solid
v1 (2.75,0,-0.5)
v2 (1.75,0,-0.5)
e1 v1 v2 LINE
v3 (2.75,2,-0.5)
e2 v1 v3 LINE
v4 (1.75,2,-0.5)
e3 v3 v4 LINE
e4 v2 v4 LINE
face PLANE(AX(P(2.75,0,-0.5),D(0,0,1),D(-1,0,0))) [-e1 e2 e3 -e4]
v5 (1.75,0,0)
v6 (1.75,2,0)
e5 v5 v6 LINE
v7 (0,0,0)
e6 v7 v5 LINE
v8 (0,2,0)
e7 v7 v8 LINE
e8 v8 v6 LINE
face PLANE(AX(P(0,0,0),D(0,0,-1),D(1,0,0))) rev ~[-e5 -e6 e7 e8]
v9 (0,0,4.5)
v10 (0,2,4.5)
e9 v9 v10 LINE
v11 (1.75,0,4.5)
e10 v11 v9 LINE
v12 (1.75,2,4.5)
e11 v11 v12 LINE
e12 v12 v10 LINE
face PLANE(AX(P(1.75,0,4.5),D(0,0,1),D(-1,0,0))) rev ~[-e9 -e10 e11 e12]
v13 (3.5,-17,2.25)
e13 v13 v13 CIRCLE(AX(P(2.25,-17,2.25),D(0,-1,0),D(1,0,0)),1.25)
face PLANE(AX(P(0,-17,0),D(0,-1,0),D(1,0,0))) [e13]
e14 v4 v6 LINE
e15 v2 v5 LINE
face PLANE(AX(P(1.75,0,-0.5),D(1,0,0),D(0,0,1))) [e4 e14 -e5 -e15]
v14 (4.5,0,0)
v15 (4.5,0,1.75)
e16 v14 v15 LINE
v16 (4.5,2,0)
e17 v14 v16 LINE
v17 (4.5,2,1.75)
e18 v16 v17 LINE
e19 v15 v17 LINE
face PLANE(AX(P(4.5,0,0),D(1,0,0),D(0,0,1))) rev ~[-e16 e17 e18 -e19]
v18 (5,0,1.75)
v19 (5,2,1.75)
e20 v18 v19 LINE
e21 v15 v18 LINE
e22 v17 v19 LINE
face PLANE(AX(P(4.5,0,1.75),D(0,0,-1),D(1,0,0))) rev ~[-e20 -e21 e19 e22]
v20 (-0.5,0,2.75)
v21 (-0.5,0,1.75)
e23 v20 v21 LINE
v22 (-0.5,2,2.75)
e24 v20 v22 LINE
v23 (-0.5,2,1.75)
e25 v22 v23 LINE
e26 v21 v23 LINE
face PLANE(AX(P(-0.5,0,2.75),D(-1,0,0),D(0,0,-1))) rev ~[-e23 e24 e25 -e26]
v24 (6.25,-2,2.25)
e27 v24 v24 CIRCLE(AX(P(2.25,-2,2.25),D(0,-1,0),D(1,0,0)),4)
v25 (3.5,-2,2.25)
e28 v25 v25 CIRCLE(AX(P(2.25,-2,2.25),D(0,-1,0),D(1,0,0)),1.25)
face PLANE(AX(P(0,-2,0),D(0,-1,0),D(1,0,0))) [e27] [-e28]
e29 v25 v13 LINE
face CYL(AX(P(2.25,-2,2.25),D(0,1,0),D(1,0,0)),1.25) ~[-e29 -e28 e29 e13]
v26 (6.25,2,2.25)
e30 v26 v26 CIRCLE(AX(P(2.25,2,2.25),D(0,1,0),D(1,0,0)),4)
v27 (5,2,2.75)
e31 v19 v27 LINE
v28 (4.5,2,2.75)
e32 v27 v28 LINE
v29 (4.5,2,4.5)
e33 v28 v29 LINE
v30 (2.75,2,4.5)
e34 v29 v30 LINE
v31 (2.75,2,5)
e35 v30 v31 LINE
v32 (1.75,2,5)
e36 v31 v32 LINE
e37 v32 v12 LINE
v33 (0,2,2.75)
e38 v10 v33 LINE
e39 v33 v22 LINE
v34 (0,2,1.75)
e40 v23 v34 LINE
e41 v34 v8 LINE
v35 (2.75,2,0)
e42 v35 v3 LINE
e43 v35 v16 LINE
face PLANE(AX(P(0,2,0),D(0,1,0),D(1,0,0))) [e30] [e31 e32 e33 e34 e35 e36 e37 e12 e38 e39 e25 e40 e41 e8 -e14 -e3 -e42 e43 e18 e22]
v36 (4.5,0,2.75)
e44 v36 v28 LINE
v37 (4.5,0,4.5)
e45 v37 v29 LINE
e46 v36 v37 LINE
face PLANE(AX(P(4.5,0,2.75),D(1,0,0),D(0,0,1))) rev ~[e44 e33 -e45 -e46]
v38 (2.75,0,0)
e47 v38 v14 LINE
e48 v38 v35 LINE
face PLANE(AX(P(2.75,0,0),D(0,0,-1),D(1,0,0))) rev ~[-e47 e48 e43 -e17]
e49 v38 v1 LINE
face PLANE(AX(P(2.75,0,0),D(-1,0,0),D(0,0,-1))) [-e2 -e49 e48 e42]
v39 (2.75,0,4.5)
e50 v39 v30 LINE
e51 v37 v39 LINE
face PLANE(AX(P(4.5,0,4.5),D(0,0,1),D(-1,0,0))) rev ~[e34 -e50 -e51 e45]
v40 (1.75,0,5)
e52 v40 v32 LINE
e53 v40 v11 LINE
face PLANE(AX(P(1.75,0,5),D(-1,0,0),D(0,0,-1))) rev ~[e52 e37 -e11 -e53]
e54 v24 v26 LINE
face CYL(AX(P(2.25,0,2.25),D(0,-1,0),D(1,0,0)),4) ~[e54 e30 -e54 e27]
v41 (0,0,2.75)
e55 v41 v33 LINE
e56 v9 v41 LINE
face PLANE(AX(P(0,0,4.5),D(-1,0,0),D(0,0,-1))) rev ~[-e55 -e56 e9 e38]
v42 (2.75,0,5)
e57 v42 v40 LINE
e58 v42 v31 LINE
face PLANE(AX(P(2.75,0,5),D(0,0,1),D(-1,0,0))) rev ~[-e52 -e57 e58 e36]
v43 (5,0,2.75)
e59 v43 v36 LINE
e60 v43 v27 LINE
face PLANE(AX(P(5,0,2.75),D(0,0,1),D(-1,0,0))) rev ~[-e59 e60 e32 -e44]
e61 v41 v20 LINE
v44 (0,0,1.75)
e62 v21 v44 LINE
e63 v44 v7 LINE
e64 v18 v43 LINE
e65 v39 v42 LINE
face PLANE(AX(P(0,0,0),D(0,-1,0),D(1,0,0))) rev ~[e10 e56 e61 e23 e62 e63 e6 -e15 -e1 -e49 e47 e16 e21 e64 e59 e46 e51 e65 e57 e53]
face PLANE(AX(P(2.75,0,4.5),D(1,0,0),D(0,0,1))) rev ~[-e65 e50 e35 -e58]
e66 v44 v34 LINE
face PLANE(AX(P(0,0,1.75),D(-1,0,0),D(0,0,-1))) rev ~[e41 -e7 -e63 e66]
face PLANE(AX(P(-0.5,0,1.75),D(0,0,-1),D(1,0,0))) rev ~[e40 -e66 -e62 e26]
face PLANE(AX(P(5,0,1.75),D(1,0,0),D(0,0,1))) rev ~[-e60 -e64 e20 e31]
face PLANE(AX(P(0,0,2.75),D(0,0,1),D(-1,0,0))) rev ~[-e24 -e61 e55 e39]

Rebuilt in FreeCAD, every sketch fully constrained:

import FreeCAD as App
import Part
import Sketcher

doc = App.newDocument("Part")
body = doc.addObject("PartDesign::Body", "Body")

# Sketch on XZ plane
sketch1 = doc.addObject("Sketcher::SketchObject", "Sketch")
body.addObject(sketch1)
sketch1.AttachmentSupport = (doc.XZ_Plane, [""])
sketch1.MapMode = "FlatFace"
sketch1.addGeometry(Part.Circle(App.Vector(2.25, 2.25, 0), App.Vector(0, 0, 1), 4), False)
sketch1.addGeometry(Part.LineSegment(App.Vector(0, 1.75, 0), App.Vector(0, 0, 0)), False)
sketch1.addGeometry(Part.LineSegment(App.Vector(0, 0, 0), App.Vector(1.75, 0, 0)), False)
sketch1.addGeometry(Part.LineSegment(App.Vector(1.75, 0, 0), App.Vector(1.75, -0.5, 0)), False)
sketch1.addGeometry(Part.LineSegment(App.Vector(1.75, -0.5, 0), App.Vector(2.75, -0.5, 0)), False)
sketch1.addGeometry(Part.LineSegment(App.Vector(2.75, -0.5, 0), App.Vector(2.75, 0, 0)), False)
sketch1.addGeometry(Part.LineSegment(App.Vector(2.75, 0, 0), App.Vector(4.5, 0, 0)), False)
sketch1.addGeometry(Part.LineSegment(App.Vector(4.5, 0, 0), App.Vector(4.5, 1.75, 0)), False)
sketch1.addGeometry(Part.LineSegment(App.Vector(4.5, 1.75, 0), App.Vector(5, 1.75, 0)), False)
sketch1.addGeometry(Part.LineSegment(App.Vector(5, 1.75, 0), App.Vector(5, 2.75, 0)), False)
sketch1.addGeometry(Part.LineSegment(App.Vector(5, 2.75, 0), App.Vector(4.5, 2.75, 0)), False)
sketch1.addGeometry(Part.LineSegment(App.Vector(4.5, 2.75, 0), App.Vector(4.5, 4.5, 0)), False)
sketch1.addGeometry(Part.LineSegment(App.Vector(4.5, 4.5, 0), App.Vector(2.75, 4.5, 0)), False)
sketch1.addGeometry(Part.LineSegment(App.Vector(2.75, 4.5, 0), App.Vector(2.75, 5, 0)), False)
sketch1.addGeometry(Part.LineSegment(App.Vector(2.75, 5, 0), App.Vector(1.75, 5, 0)), False)
sketch1.addGeometry(Part.LineSegment(App.Vector(1.75, 5, 0), App.Vector(1.75, 4.5, 0)), False)
sketch1.addGeometry(Part.LineSegment(App.Vector(1.75, 4.5, 0), App.Vector(0, 4.5, 0)), False)
sketch1.addGeometry(Part.LineSegment(App.Vector(0, 4.5, 0), App.Vector(0, 2.75, 0)), False)
sketch1.addGeometry(Part.LineSegment(App.Vector(0, 2.75, 0), App.Vector(-0.5, 2.75, 0)), False)
sketch1.addGeometry(Part.LineSegment(App.Vector(-0.5, 2.75, 0), App.Vector(-0.5, 1.75, 0)), False)
sketch1.addGeometry(Part.LineSegment(App.Vector(-0.5, 1.75, 0), App.Vector(0, 1.75, 0)), False)
sketch1.addConstraint(Sketcher.Constraint("Coincident", 1, 2, 2, 1))
sketch1.addConstraint(Sketcher.Constraint("Coincident", 2, 2, 3, 1))
sketch1.addConstraint(Sketcher.Constraint("Coincident", 3, 2, 4, 1))
sketch1.addConstraint(Sketcher.Constraint("Coincident", 4, 2, 5, 1))
sketch1.addConstraint(Sketcher.Constraint("Coincident", 5, 2, 6, 1))
sketch1.addConstraint(Sketcher.Constraint("Coincident", 6, 2, 7, 1))
sketch1.addConstraint(Sketcher.Constraint("Coincident", 7, 2, 8, 1))
sketch1.addConstraint(Sketcher.Constraint("Coincident", 8, 2, 9, 1))
sketch1.addConstraint(Sketcher.Constraint("Coincident", 9, 2, 10, 1))
sketch1.addConstraint(Sketcher.Constraint("Coincident", 10, 2, 11, 1))
sketch1.addConstraint(Sketcher.Constraint("Coincident", 11, 2, 12, 1))
sketch1.addConstraint(Sketcher.Constraint("Coincident", 12, 2, 13, 1))
sketch1.addConstraint(Sketcher.Constraint("Coincident", 13, 2, 14, 1))
sketch1.addConstraint(Sketcher.Constraint("Coincident", 14, 2, 15, 1))
sketch1.addConstraint(Sketcher.Constraint("Coincident", 15, 2, 16, 1))
sketch1.addConstraint(Sketcher.Constraint("Coincident", 16, 2, 17, 1))
sketch1.addConstraint(Sketcher.Constraint("Coincident", 17, 2, 18, 1))
sketch1.addConstraint(Sketcher.Constraint("Coincident", 18, 2, 19, 1))
sketch1.addConstraint(Sketcher.Constraint("Coincident", 19, 2, 20, 1))
sketch1.addConstraint(Sketcher.Constraint("Coincident", 20, 2, 1, 1))
sketch1.addConstraint(Sketcher.Constraint("Vertical", 1))
sketch1.addConstraint(Sketcher.Constraint("Horizontal", 2))
sketch1.addConstraint(Sketcher.Constraint("Vertical", 3))
sketch1.addConstraint(Sketcher.Constraint("Horizontal", 4))
sketch1.addConstraint(Sketcher.Constraint("Vertical", 5))
sketch1.addConstraint(Sketcher.Constraint("Horizontal", 6))
sketch1.addConstraint(Sketcher.Constraint("Vertical", 7))
sketch1.addConstraint(Sketcher.Constraint("Horizontal", 8))
sketch1.addConstraint(Sketcher.Constraint("Vertical", 9))
sketch1.addConstraint(Sketcher.Constraint("Horizontal", 10))
sketch1.addConstraint(Sketcher.Constraint("Vertical", 11))
sketch1.addConstraint(Sketcher.Constraint("Horizontal", 12))
sketch1.addConstraint(Sketcher.Constraint("Vertical", 13))
sketch1.addConstraint(Sketcher.Constraint("Horizontal", 14))
sketch1.addConstraint(Sketcher.Constraint("Vertical", 15))
sketch1.addConstraint(Sketcher.Constraint("Horizontal", 16))
sketch1.addConstraint(Sketcher.Constraint("Vertical", 17))
sketch1.addConstraint(Sketcher.Constraint("Horizontal", 18))
sketch1.addConstraint(Sketcher.Constraint("Vertical", 19))
sketch1.addConstraint(Sketcher.Constraint("Horizontal", 20))
sketch1.addConstraint(Sketcher.Constraint("Coincident", 1, 2, -1, 1))
sketch1.addConstraint(Sketcher.Constraint("PointOnObject", 5, 2, -1))
sketch1.addConstraint(Sketcher.Constraint("PointOnObject", 16, 2, -2))
sketch1.addConstraint(Sketcher.Constraint("Horizontal", 12, 2, 15, 2))
sketch1.addConstraint(Sketcher.Constraint("Horizontal", 10, 2, 17, 2))
sketch1.addConstraint(Sketcher.Constraint("Horizontal", 8, 2, 19, 2))
sketch1.addConstraint(Sketcher.Constraint("Vertical", 7, 2, 10, 2))
sketch1.addConstraint(Sketcher.Constraint("Vertical", 5, 2, 12, 2))
sketch1.addConstraint(Sketcher.Constraint("Vertical", 3, 2, 14, 2))
sketch1.addConstraint(Sketcher.Constraint("Equal", 2, 6))
sketch1.addConstraint(Sketcher.Constraint("Equal", 10, 18))
sketch1.addConstraint(Sketcher.Constraint("Equal", 16, 1))
sketch1.addConstraint(Sketcher.Constraint("Equal", 20, 3))
sketch1.addConstraint(Sketcher.Constraint("Equal", 14, 9))
sketch1.addConstraint(Sketcher.Constraint("Equal", 7, 11))
sketch1.addConstraint(Sketcher.Constraint("Equal", 5, 13))
sketch1.addConstraint(Sketcher.Constraint("Diameter", 0, 8.0))
sketch1.addConstraint(Sketcher.Constraint("DistanceX", 4, 1, 4, 2, 1.0))
sketch1.addConstraint(Sketcher.Constraint("DistanceX", 8, 1, 8, 2, 0.5))
sketch1.addConstraint(Sketcher.Constraint("DistanceX", -1, 1, 6, 2, 4.5))
sketch1.addConstraint(Sketcher.Constraint("DistanceX", 2, 2, 0, 3, 0.5))
sketch1.addConstraint(Sketcher.Constraint("DistanceY", 7, 2, 0, 3, 0.5))
pad1 = doc.addObject("PartDesign::Pad", "Pad")
body.addObject(pad1)
pad1.Profile = sketch1
pad1.Length = 2
pad1.Reversed = True

# Sketch on XZ plane
sketch2 = doc.addObject("Sketcher::SketchObject", "Sketch001")
body.addObject(sketch2)
sketch2.AttachmentSupport = (doc.XZ_Plane, [""])
sketch2.MapMode = "FlatFace"
sketch2.addGeometry(Part.Circle(App.Vector(2.25, 2.25, 0), App.Vector(0, 0, 1), 4), False)
sketch2.addConstraint(Sketcher.Constraint("Diameter", 0, 8.0))
sketch2.addConstraint(Sketcher.Constraint("DistanceX", -1, 1, 0, 3, 2.25))
sketch2.addConstraint(Sketcher.Constraint("DistanceY", -1, 1, 0, 3, 2.25))
pad2 = doc.addObject("PartDesign::Pad", "Pad001")
body.addObject(pad2)
pad2.Profile = sketch2
pad2.Length = 2

# Sketch on XZ plane
sketch3 = doc.addObject("Sketcher::SketchObject", "Sketch002")
body.addObject(sketch3)
sketch3.AttachmentSupport = (doc.XZ_Plane, [""])
sketch3.MapMode = "FlatFace"
sketch3.AttachmentOffset = App.Placement(App.Vector(0, 0, 2), App.Rotation())
sketch3.addGeometry(Part.Circle(App.Vector(2.25, 2.25, 0), App.Vector(0, 0, 1), 1.25), False)
sketch3.addConstraint(Sketcher.Constraint("Diameter", 0, 2.5))
sketch3.addConstraint(Sketcher.Constraint("DistanceX", -1, 1, 0, 3, 2.25))
sketch3.addConstraint(Sketcher.Constraint("DistanceY", -1, 1, 0, 3, 2.25))
pad3 = doc.addObject("PartDesign::Pad", "Pad002")
body.addObject(pad3)
pad3.Profile = sketch3
pad3.Length = 15

doc.recompute()
